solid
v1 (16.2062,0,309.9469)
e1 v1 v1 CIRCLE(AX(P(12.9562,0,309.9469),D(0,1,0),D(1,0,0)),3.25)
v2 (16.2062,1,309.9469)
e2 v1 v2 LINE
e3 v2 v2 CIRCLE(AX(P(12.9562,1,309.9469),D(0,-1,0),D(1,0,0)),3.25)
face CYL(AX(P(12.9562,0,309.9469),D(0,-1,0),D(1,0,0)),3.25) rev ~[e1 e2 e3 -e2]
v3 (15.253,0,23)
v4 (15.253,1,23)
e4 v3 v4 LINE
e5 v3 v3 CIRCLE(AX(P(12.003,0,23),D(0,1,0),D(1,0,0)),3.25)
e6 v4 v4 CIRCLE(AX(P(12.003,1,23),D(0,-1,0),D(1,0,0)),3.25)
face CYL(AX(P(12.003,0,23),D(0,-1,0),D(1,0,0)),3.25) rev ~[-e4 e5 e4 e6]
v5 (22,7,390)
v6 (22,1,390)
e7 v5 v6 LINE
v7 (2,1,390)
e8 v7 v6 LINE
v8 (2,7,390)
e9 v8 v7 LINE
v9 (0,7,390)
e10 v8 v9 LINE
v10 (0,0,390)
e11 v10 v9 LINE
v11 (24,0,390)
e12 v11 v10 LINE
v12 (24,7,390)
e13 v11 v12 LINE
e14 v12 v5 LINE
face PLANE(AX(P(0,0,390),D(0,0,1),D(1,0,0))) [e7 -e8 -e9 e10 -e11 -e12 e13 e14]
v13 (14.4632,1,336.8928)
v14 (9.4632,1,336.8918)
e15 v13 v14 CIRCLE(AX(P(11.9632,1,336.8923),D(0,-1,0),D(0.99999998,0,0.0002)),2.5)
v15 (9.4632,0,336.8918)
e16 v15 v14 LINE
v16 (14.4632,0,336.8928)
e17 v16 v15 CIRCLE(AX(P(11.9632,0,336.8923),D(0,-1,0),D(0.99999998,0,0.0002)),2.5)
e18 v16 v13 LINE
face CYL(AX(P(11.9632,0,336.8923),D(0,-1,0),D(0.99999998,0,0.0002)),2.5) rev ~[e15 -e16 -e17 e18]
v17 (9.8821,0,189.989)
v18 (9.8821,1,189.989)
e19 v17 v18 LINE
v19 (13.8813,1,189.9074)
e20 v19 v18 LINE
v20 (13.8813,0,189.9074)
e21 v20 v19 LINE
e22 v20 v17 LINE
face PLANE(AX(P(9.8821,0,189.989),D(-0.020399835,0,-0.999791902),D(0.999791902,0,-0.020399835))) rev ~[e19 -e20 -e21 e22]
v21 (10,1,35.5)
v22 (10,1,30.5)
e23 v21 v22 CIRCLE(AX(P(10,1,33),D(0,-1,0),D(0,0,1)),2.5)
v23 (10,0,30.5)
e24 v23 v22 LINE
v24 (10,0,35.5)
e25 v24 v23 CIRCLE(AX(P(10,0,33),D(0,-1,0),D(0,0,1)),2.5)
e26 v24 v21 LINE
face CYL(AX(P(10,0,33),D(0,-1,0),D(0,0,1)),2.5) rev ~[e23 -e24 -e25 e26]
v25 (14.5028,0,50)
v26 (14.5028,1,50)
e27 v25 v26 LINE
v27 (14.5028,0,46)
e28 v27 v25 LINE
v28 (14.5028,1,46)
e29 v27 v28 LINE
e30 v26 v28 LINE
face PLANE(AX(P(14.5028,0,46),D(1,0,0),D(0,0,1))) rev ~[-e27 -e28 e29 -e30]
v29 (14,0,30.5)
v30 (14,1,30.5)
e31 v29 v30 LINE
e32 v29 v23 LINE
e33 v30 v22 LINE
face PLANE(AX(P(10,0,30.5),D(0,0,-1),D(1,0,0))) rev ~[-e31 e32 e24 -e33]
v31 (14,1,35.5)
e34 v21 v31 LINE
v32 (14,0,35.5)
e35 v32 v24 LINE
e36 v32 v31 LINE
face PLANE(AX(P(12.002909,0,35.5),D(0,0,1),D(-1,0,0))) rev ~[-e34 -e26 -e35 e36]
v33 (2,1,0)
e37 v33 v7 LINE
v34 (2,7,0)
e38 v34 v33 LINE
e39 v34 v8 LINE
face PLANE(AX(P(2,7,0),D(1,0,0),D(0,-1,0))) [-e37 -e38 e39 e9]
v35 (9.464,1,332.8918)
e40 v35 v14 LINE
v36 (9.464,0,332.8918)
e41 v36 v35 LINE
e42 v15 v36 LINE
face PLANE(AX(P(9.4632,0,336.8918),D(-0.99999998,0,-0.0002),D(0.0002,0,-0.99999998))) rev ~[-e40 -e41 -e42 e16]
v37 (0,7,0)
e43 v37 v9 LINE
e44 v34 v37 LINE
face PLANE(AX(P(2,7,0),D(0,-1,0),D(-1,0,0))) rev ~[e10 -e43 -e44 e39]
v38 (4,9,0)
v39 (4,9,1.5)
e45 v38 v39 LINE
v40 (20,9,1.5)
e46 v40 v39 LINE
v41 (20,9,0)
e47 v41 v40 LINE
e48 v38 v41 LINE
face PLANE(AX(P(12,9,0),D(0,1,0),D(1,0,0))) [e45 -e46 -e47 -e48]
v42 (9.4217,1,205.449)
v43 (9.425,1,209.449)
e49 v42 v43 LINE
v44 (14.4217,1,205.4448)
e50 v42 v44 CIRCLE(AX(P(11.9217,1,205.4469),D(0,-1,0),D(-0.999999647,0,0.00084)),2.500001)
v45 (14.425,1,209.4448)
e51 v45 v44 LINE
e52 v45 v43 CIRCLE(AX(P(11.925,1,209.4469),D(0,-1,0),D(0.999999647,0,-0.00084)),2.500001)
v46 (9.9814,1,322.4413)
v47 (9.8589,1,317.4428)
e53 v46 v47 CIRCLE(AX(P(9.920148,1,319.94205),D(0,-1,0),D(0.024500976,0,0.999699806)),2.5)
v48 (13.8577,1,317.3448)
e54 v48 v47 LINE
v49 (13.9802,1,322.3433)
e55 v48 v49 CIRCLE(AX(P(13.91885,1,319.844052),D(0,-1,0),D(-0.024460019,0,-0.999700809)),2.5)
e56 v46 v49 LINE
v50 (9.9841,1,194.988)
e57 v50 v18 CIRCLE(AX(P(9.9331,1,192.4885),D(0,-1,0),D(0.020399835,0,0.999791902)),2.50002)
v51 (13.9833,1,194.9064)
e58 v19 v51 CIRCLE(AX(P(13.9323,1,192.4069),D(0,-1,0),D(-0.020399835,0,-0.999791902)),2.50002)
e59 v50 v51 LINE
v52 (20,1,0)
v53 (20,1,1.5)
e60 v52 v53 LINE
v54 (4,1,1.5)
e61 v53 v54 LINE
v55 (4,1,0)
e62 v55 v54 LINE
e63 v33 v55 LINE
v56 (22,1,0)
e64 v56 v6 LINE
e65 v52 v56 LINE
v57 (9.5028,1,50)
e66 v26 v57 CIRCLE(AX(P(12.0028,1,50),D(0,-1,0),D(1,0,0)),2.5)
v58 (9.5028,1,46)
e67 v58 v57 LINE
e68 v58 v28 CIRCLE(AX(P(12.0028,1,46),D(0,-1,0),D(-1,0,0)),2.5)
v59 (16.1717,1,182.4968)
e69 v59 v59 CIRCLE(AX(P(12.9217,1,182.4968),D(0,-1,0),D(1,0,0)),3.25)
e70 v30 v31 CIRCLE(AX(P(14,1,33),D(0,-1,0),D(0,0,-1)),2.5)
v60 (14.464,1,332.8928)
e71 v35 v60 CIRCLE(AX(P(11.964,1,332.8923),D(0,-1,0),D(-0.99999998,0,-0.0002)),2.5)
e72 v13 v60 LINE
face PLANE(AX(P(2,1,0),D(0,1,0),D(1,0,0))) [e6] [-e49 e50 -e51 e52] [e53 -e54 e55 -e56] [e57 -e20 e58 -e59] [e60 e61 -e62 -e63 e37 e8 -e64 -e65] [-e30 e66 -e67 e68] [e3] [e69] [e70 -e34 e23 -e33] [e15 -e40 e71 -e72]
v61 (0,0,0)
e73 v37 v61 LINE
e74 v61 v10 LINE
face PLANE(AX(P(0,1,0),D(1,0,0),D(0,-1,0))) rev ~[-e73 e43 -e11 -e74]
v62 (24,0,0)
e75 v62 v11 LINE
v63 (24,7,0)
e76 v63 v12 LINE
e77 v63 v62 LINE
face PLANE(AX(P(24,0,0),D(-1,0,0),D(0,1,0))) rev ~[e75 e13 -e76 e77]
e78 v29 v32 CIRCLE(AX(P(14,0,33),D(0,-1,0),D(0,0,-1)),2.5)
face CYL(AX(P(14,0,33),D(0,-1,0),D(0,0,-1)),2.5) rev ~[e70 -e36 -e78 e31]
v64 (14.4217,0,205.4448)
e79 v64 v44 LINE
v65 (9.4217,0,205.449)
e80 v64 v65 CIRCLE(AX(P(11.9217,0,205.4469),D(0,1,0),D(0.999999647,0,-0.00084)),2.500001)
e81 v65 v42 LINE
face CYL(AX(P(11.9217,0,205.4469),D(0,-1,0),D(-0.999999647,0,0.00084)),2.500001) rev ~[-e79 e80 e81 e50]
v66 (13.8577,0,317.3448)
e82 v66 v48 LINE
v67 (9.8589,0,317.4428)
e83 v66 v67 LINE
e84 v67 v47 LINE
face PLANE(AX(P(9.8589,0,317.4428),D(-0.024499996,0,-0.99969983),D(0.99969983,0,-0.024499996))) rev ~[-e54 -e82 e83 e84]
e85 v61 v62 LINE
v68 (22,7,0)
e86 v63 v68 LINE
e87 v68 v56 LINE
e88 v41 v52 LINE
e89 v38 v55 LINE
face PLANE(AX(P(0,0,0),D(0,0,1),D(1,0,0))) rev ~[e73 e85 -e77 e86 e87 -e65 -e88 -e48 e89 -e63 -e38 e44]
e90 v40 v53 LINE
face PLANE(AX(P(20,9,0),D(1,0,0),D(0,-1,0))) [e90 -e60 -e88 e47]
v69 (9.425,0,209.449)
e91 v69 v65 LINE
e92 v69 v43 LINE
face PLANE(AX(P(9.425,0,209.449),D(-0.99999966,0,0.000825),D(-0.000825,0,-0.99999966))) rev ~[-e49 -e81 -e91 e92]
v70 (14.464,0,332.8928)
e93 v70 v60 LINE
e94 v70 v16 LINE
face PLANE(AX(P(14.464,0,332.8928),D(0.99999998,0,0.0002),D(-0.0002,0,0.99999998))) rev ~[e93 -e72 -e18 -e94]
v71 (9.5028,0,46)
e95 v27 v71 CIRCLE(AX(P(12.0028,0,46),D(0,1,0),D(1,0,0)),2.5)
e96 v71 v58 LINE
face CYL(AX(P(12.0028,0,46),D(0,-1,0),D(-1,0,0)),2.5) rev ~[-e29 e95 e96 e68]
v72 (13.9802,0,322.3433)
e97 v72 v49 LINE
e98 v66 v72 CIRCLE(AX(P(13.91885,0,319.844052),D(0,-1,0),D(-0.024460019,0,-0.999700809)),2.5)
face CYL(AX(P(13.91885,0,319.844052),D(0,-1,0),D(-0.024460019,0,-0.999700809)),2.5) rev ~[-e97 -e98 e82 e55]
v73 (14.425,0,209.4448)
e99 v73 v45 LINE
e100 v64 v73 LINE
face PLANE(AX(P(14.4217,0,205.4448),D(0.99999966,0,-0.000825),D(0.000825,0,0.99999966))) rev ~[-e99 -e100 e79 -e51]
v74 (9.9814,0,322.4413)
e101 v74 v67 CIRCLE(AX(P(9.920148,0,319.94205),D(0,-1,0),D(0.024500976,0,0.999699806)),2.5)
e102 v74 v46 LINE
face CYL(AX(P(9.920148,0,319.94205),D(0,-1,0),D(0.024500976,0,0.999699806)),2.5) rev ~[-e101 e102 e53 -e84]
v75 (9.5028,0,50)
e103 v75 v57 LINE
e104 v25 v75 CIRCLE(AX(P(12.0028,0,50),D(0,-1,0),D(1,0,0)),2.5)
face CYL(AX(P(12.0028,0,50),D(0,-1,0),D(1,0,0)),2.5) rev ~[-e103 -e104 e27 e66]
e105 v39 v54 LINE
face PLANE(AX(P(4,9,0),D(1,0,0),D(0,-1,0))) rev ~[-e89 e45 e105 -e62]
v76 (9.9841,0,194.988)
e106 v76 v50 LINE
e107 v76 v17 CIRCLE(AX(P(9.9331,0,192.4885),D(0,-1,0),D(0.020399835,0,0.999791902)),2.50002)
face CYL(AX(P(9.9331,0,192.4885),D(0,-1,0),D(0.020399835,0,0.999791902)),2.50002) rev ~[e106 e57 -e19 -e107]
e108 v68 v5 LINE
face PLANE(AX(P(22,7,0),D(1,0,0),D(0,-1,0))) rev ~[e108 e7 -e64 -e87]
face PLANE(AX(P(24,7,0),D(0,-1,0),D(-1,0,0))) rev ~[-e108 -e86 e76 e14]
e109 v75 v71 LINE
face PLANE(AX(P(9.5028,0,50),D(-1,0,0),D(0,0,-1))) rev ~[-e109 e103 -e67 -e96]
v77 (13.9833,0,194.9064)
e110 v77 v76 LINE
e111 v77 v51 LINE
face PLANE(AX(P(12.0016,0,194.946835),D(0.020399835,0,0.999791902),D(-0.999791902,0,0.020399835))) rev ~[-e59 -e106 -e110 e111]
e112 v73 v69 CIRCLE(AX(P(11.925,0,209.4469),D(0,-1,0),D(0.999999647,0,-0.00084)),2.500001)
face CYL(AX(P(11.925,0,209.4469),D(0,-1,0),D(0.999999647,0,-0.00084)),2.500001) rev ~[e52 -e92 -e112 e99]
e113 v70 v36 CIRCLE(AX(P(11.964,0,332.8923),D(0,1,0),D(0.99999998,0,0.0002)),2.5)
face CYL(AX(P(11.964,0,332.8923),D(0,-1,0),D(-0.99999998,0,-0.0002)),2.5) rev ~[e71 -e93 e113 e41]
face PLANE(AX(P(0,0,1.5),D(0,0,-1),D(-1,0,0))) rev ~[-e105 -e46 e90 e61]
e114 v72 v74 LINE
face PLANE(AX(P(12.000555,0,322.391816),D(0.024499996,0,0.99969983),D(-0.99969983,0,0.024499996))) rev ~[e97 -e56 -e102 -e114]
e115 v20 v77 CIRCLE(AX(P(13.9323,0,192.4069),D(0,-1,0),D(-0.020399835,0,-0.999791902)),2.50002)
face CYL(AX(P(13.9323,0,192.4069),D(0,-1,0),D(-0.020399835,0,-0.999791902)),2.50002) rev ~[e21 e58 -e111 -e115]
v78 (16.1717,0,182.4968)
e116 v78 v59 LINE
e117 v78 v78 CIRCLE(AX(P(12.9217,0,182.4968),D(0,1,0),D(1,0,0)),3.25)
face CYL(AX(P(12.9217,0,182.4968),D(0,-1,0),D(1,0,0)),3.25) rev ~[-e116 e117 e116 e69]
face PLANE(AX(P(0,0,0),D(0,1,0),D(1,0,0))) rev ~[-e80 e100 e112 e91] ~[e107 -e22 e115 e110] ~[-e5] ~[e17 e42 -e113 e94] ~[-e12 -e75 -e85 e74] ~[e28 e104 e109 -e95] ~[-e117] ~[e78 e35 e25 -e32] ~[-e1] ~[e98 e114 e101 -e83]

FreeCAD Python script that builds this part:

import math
import FreeCAD as App
import Part
import Sketcher

V = App.Vector
Q = App.Units.Quantity

doc = App.newDocument("Part")
params = doc.addObject("Spreadsheet::Sheet", "Params")
for row, (alias, value) in enumerate([
    ("sketch1_width", "24 mm"),
    ("sketch1_width2", "2 mm"),
    ("sketch1_height", "7 mm"),
    ("pad1_length", "390 mm"),
    ("sketch2_diameter", "6.5 mm"),
    ("sketch2_radius", "2.5 mm"),
    ("sketch2_width", "4 mm"),
    ("sketch2_length", "4 mm"),
    ("pocket1_length", "10 mm"),
    ("sketch3_width", "16 mm"),
    ("sketch3_height", "8 mm"),
    ("pad2_length", "1.5 mm"),
], start=1):
    params.set(f"A{row}", alias)
    params.set(f"B{row}", "=" + value)
    params.setAlias(f"B{row}", alias)

body = doc.addObject("PartDesign::Body", "Body")

# Sketch on XY plane
sketch1 = body.newObject("Sketcher::SketchObject", "Sketch")
sketch1.AttachmentSupport = (doc.getObject("XY_Plane"), [""])
sketch1.MapMode = "FlatFace"
sketch1.addGeometry([
    Part.LineSegment(V(0, 0, 0), V(24, 0, 0)),  # 0
    Part.LineSegment(V(24, 0, 0), V(24, 7, 0)),  # 1
    Part.LineSegment(V(24, 7, 0), V(22, 7, 0)),  # 2
    Part.LineSegment(V(22, 7, 0), V(22, 1, 0)),  # 3
    Part.LineSegment(V(22, 1, 0), V(2, 1, 0)),  # 4
    Part.LineSegment(V(2, 1, 0), V(2, 7, 0)),  # 5
    Part.LineSegment(V(2, 7, 0), V(0, 7, 0)),  # 6
    Part.LineSegment(V(0, 7, 0), V(0, 0, 0)),  # 7
], False)
sketch1.addConstraint([
    Sketcher.Constraint("Coincident", 0, 2, 1, 1),
    Sketcher.Constraint("Coincident", 1, 2, 2, 1),
    Sketcher.Constraint("Coincident", 2, 2, 3, 1),
    Sketcher.Constraint("Coincident", 3, 2, 4, 1),
    Sketcher.Constraint("Coincident", 4, 2, 5, 1),
    Sketcher.Constraint("Coincident", 5, 2, 6, 1),
    Sketcher.Constraint("Coincident", 6, 2, 7, 1),
    Sketcher.Constraint("Coincident", 7, 2, 0, 1),
    Sketcher.Constraint("Horizontal", 0),
    Sketcher.Constraint("Vertical", 1),
    Sketcher.Constraint("Horizontal", 2),
    Sketcher.Constraint("Vertical", 3),
    Sketcher.Constraint("Horizontal", 4),
    Sketcher.Constraint("Vertical", 5),
    Sketcher.Constraint("Horizontal", 6),
    Sketcher.Constraint("Vertical", 7),
    Sketcher.Constraint("Coincident", 7, 2, -1, 1),
    Sketcher.Constraint("Horizontal", 2, 2, 5, 2),
    Sketcher.Constraint("Equal", 2, 6),
    Sketcher.Constraint("DistanceX", 0, 1, 0, 2, 24.0),
    Sketcher.Constraint("DistanceX", 2, 2, 2, 1, 2.0),
    Sketcher.Constraint("DistanceY", 1, 1, 1, 2, 7.0),
    Sketcher.Constraint("DistanceY", -1, 1, 3, 2, 1.0),
])
sketch1.setExpression("Constraints[19]", "Params.sketch1_width")
sketch1.setExpression("Constraints[20]", "Params.sketch1_width2")
sketch1.setExpression("Constraints[21]", "Params.sketch1_height")
pad1 = body.newObject("PartDesign::Pad", "Pad")
pad1.Profile = sketch1
pad1.setExpression("Length", "Params.pad1_length")

# Sketch on XZ plane
sketch2 = body.newObject("Sketcher::SketchObject", "Sketch001")
sketch2.AttachmentSupport = (doc.getObject("XZ_Plane"), [""])
sketch2.MapMode = "FlatFace"
sketch2.addGeometry([
    Part.Circle(V(12.003, 23, 0), V(0, 0, 1), 3.25),  # 0
    Part.ArcOfCircle(Part.Circle(V(11.964, 332.8923, 0), V(0, 0, 1), 2.5), math.radians(-179.988541), math.radians(0.011459)),  # 1
    Part.LineSegment(V(14.464, 332.8928, 0), V(14.4632, 336.8928, 0)),  # 2
    Part.ArcOfCircle(Part.Circle(V(11.9632, 336.8923, 0), V(0, 0, 1), 2.5), math.radians(0.011459), math.radians(180.011459)),  # 3
    Part.LineSegment(V(9.4632, 336.8918, 0), V(9.464, 332.8918, 0)),  # 4
    Part.LineSegment(V(9.8589, 317.4428, 0), V(13.8577, 317.3448, 0)),  # 5
    Part.ArcOfCircle(Part.Circle(V(13.9189, 319.844, 0), V(0, 0, 1), 2.499949), math.radians(-91.402769), math.radians(88.594996)),  # 6
    Part.LineSegment(V(13.9802, 322.3433, 0), V(9.9814, 322.4413, 0)),  # 7
    Part.ArcOfCircle(Part.Circle(V(9.9201, 319.9421, 0), V(0, 0, 1), 2.499952), math.radians(88.59494), math.radians(268.597287)),  # 8
    Part.Circle(V(12.9562, 309.9469, 0), V(0, 0, 1), 3.25),  # 9
    Part.ArcOfCircle(Part.Circle(V(11.9217, 205.4469, 0), V(0, 0, 1), 2.500001), math.radians(179.951872), math.radians(359.951872)),  # 10
    Part.LineSegment(V(14.4217, 205.4448, 0), V(14.425, 209.4448, 0)),  # 11
    Part.ArcOfCircle(Part.Circle(V(11.925, 209.4469, 0), V(0, 0, 1), 2.500001), math.radians(-0.048128), math.radians(179.951872)),  # 12
    Part.LineSegment(V(9.425, 209.449, 0), V(9.4217, 205.449, 0)),  # 13
    Part.LineSegment(V(9.8821, 189.989, 0), V(13.8813, 189.9074, 0)),  # 14
    Part.ArcOfCircle(Part.Circle(V(13.9323, 192.4069, 0), V(0, 0, 1), 2.50002), math.radians(-91.168906), math.radians(88.831094)),  # 15
    Part.LineSegment(V(13.9833, 194.9064, 0), V(9.9841, 194.988, 0)),  # 16
    Part.ArcOfCircle(Part.Circle(V(9.9331, 192.4885, 0), V(0, 0, 1), 2.50002), math.radians(88.831094), math.radians(268.831094)),  # 17
    Part.Circle(V(12.9217, 182.4968, 0), V(0, 0, 1), 3.25),  # 18
    Part.ArcOfCircle(Part.Circle(V(12.0028, 46, 0), V(0, 0, 1), 2.5), math.radians(180), math.radians(360)),  # 19
    Part.LineSegment(V(14.5028, 46, 0), V(14.5028, 50, 0)),  # 20
    Part.ArcOfCircle(Part.Circle(V(12.0028, 50, 0), V(0, 0, 1), 2.5), math.radians(0), math.radians(180)),  # 21
    Part.LineSegment(V(9.5028, 50, 0), V(9.5028, 46, 0)),  # 22
    Part.LineSegment(V(10, 30.5, 0), V(14, 30.5, 0)),  # 23
    Part.ArcOfCircle(Part.Circle(V(14, 33, 0), V(0, 0, 1), 2.5), math.radians(-90), math.radians(90)),  # 24
    Part.LineSegment(V(14, 35.5, 0), V(10, 35.5, 0)),  # 25
    Part.ArcOfCircle(Part.Circle(V(10, 33, 0), V(0, 0, 1), 2.5), math.radians(90), math.radians(270)),  # 26
], False)
sketch2.addConstraint([
    Sketcher.Constraint("Tangent", 1, 2, 2, 1),
    Sketcher.Constraint("Tangent", 2, 2, 3, 1),
    Sketcher.Constraint("Tangent", 3, 2, 4, 1),
    Sketcher.Constraint("Tangent", 4, 2, 1, 1),
    Sketcher.Constraint("Tangent", 5, 2, 6, 1),
    Sketcher.Constraint("Tangent", 6, 2, 7, 1),
    Sketcher.Constraint("Tangent", 7, 2, 8, 1),
    Sketcher.Constraint("Tangent", 8, 2, 5, 1),
    Sketcher.Constraint("Tangent", 10, 2, 11, 1),
    Sketcher.Constraint("Tangent", 11, 2, 12, 1),
    Sketcher.Constraint("Tangent", 12, 2, 13, 1),
    Sketcher.Constraint("Tangent", 13, 2, 10, 1),
    Sketcher.Constraint("Tangent", 14, 2, 15, 1),
    Sketcher.Constraint("Tangent", 15, 2, 16, 1),
    Sketcher.Constraint("Tangent", 16, 2, 17, 1),
    Sketcher.Constraint("Tangent", 17, 2, 14, 1),
    Sketcher.Constraint("Tangent", 19, 2, 20, 1),
    Sketcher.Constraint("Tangent", 20, 2, 21, 1),
    Sketcher.Constraint("Tangent", 21, 2, 22, 1),
    Sketcher.Constraint("Tangent", 22, 2, 19, 1),
    Sketcher.Constraint("Tangent", 23, 2, 24, 1),
    Sketcher.Constraint("Tangent", 24, 2, 25, 1),
    Sketcher.Constraint("Tangent", 25, 2, 26, 1),
    Sketcher.Constraint("Tangent", 26, 2, 23, 1),
    Sketcher.Constraint("Vertical", 20),
    Sketcher.Constraint("Vertical", 22),
    Sketcher.Constraint("Horizontal", 23),
    Sketcher.Constraint("Horizontal", 25),
    Sketcher.Constraint("Equal", 1, 3),
    Sketcher.Constraint("Equal", 3, 6),
    Sketcher.Constraint("Equal", 6, 8),
    Sketcher.Constraint("Equal", 0, 9),
    Sketcher.Constraint("Equal", 8, 10),
    Sketcher.Constraint("Equal", 10, 12),
    Sketcher.Constraint("Equal", 12, 15),
    Sketcher.Constraint("Equal", 15, 17),
    Sketcher.Constraint("Equal", 9, 18),
    Sketcher.Constraint("Equal", 17, 19),
    Sketcher.Constraint("Equal", 21, 24),
    Sketcher.Constraint("Vertical", 0, 3, 19, 3),
    Sketcher.Constraint("Equal", 25, 20),
    Sketcher.Constraint("Equal", 4, 5),
    Sketcher.Constraint("Equal", 7, 11),
    Sketcher.Constraint("Equal", 13, 14),
    Sketcher.Constraint("Diameter", 0, 6.5),
    Sketcher.Constraint("Radius", 1, 2.5),
    Sketcher.Constraint("DistanceY", -1, 1, 0, 3, 23.0),
    Sketcher.Constraint("DistanceX", -1, 1, 26, 3, 10.0),
    Sketcher.Constraint("DistanceY", 0, 3, 19, 3, 23.0),
    Sketcher.Constraint("DistanceY", 0, 3, 24, 3, 10.0),
    Sketcher.Constraint("DistanceX", 23, 1, 23, 2, 4.0),
    Sketcher.Constraint("Distance", 2, 4.0),
    Sketcher.Constraint("DistanceX", 10, 3, 18, 3, 1.0),
    Sketcher.Constraint("Angle", 14, Q("-1.169 deg")),
    Sketcher.Constraint("DistanceY", 10, 3, 9, 3, 104.5),
    Sketcher.Constraint("DistanceX", -1, 1, 8, 3, 9.92),
    Sketcher.Constraint("DistanceY", 15, 3, 10, 3, 13.04),
    Sketcher.Constraint("DistanceY", 18, 3, 15, 3, 9.91),
    Sketcher.Constraint("DistanceX", 8, 3, 6, 2, 4.06),
    Sketcher.Constraint("DistanceX", -1, 1, 0, 3, 12.003),
    Sketcher.Constraint("DistanceX", -1, 1, 1, 3, 11.964),
    Sketcher.Constraint("DistanceY", -1, 1, 6, 3, 319.844),
    Sketcher.Constraint("DistanceY", -1, 1, 9, 3, 309.947),
    Sketcher.Constraint("DistanceX", -1, 1, 12, 3, 11.925),
    Sketcher.Constraint("DistanceX", -1, 1, 17, 3, 9.933),
    Sketcher.Constraint("DistanceY", -1, 1, 12, 2, 209.449),
    Sketcher.Constraint("DistanceX", 8, 3, 3, 3, 2.043),
    Sketcher.Constraint("DistanceX", 8, 3, 9, 3, 3.036),
    Sketcher.Constraint("DistanceY", 9, 3, 1, 2, 22.946),
])
sketch2.setExpression("Constraints[44]", "Params.sketch2_diameter")
sketch2.setExpression("Constraints[45]", "Params.sketch2_radius")
sketch2.setExpression("Constraints[50]", "Params.sketch2_width")
sketch2.setExpression("Constraints[51]", "Params.sketch2_length")
pocket1 = body.newObject("PartDesign::Pocket", "Pocket")
pocket1.Profile = sketch2
pocket1.setExpression("Length", "Params.pocket1_length")

# Sketch on XY plane
sketch3 = body.newObject("Sketcher::SketchObject", "Sketch002")
sketch3.AttachmentSupport = (doc.getObject("XY_Plane"), [""])
sketch3.MapMode = "FlatFace"
sketch3.addGeometry([
    Part.LineSegment(V(20, 1, 0), V(4, 1, 0)),
    Part.LineSegment(V(4, 1, 0), V(4, 9, 0)),
    Part.LineSegment(V(4, 9, 0), V(20, 9, 0)),
    Part.LineSegment(V(20, 9, 0), V(20, 1, 0)),
], False)
sketch3.addConstraint([
    Sketcher.Constraint("Coincident", 0, 2, 1, 1),
    Sketcher.Constraint("Coincident", 1, 2, 2, 1),
    Sketcher.Constraint("Coincident", 2, 2, 3, 1),
    Sketcher.Constraint("Coincident", 3, 2, 0, 1),
    Sketcher.Constraint("Horizontal", 0),
    Sketcher.Constraint("Vertical", 1),
    Sketcher.Constraint("Horizontal", 2),
    Sketcher.Constraint("Vertical", 3),
    Sketcher.Constraint("DistanceX", 0, 2, 0, 1, 16.0),
    Sketcher.Constraint("DistanceY", 1, 1, 1, 2, 8.0),
    Sketcher.Constraint("DistanceX", -1, 1, 0, 2, 4.0),
    Sketcher.Constraint("DistanceY", -1, 1, 0, 2, 1.0),
])
sketch3.setExpression("Constraints[8]", "Params.sketch3_width")
sketch3.setExpression("Constraints[9]", "Params.sketch3_height")
pad2 = body.newObject("PartDesign::Pad", "Pad001")
pad2.Profile = sketch3
pad2.setExpression("Length", "Params.pad2_length")

doc.recompute()
